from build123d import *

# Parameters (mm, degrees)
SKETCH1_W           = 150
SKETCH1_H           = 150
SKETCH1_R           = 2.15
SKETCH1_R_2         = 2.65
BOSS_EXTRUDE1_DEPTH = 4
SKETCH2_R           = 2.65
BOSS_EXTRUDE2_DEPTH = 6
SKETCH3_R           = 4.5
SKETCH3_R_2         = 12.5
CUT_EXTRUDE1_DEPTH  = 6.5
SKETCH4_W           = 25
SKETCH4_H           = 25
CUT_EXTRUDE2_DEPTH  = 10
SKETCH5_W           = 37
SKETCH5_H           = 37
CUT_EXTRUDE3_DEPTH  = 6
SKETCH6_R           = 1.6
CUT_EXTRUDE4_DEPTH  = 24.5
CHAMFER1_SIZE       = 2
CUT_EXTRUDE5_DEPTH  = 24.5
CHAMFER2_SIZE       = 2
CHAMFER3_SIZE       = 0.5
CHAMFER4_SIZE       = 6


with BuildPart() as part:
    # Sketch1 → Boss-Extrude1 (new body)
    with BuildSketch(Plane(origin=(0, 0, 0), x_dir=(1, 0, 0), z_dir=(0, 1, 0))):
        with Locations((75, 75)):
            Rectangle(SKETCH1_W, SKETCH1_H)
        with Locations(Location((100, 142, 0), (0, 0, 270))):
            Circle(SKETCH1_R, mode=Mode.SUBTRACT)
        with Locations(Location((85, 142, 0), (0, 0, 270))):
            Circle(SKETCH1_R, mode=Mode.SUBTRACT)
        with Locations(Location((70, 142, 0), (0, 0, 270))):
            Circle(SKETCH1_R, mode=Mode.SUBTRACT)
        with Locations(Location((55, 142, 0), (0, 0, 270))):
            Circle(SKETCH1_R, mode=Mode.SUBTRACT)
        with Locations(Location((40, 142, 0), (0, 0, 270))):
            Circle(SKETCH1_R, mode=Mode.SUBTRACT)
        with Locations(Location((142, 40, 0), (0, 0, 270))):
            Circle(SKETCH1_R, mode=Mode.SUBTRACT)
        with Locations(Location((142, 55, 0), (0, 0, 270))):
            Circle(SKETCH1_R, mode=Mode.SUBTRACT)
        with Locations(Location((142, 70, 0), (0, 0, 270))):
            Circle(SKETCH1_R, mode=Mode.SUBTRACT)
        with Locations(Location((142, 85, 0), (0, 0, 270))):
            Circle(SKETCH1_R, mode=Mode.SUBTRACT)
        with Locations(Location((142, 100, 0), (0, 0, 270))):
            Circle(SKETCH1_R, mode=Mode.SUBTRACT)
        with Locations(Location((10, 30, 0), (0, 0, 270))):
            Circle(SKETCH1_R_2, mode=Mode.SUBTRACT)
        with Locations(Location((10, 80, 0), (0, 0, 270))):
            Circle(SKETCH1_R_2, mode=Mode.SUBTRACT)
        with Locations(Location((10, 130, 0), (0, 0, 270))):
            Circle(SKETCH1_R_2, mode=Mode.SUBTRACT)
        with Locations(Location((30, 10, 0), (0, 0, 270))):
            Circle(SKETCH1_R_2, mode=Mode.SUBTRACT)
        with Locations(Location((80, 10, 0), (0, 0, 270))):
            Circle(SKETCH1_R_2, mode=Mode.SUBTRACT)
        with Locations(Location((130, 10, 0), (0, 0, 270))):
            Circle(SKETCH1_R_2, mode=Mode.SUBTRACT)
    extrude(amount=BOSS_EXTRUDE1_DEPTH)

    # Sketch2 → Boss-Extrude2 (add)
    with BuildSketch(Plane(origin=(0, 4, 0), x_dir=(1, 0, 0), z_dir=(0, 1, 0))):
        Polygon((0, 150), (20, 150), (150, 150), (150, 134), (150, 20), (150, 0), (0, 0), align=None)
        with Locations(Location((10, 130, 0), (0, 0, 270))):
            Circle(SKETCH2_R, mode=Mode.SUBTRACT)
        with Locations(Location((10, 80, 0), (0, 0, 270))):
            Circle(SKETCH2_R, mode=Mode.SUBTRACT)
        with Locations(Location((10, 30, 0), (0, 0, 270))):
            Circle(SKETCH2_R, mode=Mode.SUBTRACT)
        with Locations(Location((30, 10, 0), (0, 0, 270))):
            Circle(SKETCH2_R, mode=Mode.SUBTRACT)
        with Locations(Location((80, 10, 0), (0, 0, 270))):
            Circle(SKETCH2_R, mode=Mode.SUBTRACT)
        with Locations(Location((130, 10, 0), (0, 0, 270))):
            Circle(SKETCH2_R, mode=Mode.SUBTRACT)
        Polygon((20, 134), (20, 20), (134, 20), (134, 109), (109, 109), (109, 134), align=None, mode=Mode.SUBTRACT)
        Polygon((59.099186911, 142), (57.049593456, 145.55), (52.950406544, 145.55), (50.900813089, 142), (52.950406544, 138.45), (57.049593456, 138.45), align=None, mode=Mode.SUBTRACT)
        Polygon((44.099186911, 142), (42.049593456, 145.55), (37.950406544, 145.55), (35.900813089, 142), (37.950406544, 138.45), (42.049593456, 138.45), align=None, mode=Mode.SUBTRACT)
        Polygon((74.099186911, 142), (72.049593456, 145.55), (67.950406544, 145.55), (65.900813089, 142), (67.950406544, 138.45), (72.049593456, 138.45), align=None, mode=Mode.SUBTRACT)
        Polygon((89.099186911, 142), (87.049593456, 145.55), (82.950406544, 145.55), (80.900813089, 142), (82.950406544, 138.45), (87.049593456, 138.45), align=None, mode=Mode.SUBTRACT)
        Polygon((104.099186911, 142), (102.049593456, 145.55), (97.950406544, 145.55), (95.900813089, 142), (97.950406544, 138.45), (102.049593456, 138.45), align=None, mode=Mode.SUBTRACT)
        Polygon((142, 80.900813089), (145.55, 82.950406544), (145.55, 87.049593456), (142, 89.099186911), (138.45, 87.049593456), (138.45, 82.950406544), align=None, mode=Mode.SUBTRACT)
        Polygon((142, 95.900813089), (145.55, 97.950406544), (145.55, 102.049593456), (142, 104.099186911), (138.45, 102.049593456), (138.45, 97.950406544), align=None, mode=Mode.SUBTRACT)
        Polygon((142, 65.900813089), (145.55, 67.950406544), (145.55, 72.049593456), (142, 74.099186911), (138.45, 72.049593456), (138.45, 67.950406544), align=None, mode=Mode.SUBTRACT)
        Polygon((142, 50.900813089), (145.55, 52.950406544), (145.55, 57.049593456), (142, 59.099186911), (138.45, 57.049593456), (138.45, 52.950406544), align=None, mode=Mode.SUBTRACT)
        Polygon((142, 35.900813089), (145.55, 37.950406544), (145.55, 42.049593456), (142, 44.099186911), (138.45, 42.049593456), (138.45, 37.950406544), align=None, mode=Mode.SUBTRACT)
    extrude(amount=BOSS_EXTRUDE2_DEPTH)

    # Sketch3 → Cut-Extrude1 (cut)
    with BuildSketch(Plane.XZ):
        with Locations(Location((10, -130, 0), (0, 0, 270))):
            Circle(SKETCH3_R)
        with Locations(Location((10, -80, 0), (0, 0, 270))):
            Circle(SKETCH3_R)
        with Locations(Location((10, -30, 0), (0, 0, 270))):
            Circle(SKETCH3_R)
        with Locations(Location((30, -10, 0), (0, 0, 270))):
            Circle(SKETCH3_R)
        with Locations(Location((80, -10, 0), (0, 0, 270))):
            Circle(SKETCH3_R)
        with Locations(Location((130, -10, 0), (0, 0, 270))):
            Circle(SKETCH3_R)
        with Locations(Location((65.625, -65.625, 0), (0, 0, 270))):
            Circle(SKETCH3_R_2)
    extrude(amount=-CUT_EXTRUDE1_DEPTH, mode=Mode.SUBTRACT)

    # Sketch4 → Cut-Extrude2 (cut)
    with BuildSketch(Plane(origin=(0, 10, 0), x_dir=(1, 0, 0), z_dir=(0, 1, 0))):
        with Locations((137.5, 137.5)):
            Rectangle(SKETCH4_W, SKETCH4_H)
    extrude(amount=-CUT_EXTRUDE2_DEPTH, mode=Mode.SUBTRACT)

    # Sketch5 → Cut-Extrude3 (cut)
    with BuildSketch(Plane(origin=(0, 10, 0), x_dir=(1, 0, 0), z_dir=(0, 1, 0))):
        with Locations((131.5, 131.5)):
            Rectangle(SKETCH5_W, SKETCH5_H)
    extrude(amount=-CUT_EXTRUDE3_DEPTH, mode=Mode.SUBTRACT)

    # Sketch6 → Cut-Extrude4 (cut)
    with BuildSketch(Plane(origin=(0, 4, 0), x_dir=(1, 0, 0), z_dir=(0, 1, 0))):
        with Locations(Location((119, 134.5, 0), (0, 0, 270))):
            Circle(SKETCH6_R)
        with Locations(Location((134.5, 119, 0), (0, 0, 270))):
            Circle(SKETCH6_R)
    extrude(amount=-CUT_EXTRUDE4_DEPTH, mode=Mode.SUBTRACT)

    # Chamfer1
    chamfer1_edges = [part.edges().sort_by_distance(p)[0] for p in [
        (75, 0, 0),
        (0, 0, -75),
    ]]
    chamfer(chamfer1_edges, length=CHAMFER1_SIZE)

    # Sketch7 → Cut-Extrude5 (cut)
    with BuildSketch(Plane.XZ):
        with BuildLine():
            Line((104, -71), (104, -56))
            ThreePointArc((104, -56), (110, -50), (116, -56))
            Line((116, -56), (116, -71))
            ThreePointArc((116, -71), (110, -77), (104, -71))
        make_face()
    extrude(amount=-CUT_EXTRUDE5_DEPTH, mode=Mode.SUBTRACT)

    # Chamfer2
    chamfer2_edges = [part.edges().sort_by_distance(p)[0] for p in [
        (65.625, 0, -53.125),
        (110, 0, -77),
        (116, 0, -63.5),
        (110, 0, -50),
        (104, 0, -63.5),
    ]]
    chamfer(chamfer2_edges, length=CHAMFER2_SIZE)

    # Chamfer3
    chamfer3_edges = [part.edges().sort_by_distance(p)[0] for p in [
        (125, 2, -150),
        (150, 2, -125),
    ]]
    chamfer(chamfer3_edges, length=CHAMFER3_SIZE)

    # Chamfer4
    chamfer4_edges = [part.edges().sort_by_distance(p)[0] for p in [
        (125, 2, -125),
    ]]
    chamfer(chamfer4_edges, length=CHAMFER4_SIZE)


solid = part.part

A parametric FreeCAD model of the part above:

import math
import FreeCAD as App
import Part
import Sketcher
Q = App.Units.Quantity


def edges_at(feature, points):
    """Names of the edges that pass closest to the given points."""
    edges = feature.Shape.Edges
    near = lambda p: min(range(len(edges)), key=lambda i: edges[i].distToShape(Part.Vertex(*p))[0])
    return sorted({f"Edge{near(p) + 1}" for p in points})

doc = App.newDocument("Part")
body = doc.addObject("PartDesign::Body", "Body")

sketch1 = body.newObject("Sketcher::SketchObject", "Sketch")
sketch1.AttachmentSupport = (doc.getObject("XZ_Plane"), [""])
sketch1.MapMode = "FlatFace"
sketch1.addGeometry(Part.LineSegment(App.Vector(0, -150, 0), App.Vector(0, 0, 0)), False)
sketch1.addGeometry(Part.LineSegment(App.Vector(0, 0, 0), App.Vector(150, 0, 0)), False)
sketch1.addGeometry(Part.LineSegment(App.Vector(150, 0, 0), App.Vector(150, -150, 0)), False)
sketch1.addGeometry(Part.LineSegment(App.Vector(150, -150, 0), App.Vector(0, -150, 0)), False)
sketch1.addGeometry(Part.Circle(App.Vector(30, -10, 0), App.Vector(0, 0, 1), 2.65), False)
sketch1.addGeometry(Part.Circle(App.Vector(10, -30, 0), App.Vector(0, 0, 1), 2.65), False)
sketch1.addGeometry(Part.Circle(App.Vector(80, -10, 0), App.Vector(0, 0, 1), 2.65), False)
sketch1.addGeometry(Part.Circle(App.Vector(130, -10, 0), App.Vector(0, 0, 1), 2.65), False)
sketch1.addGeometry(Part.Circle(App.Vector(142, -40, 0), App.Vector(0, 0, 1), 2.15), False)
sketch1.addGeometry(Part.Circle(App.Vector(142, -55, 0), App.Vector(0, 0, 1), 2.15), False)
sketch1.addGeometry(Part.Circle(App.Vector(142, -70, 0), App.Vector(0, 0, 1), 2.15), False)
sketch1.addGeometry(Part.Circle(App.Vector(10, -80, 0), App.Vector(0, 0, 1), 2.65), False)
sketch1.addGeometry(Part.Circle(App.Vector(10, -130, 0), App.Vector(0, 0, 1), 2.65), False)
sketch1.addGeometry(Part.Circle(App.Vector(40, -142, 0), App.Vector(0, 0, 1), 2.15), False)
sketch1.addGeometry(Part.Circle(App.Vector(55, -142, 0), App.Vector(0, 0, 1), 2.15), False)
sketch1.addGeometry(Part.Circle(App.Vector(70, -142, 0), App.Vector(0, 0, 1), 2.15), False)
sketch1.addGeometry(Part.Circle(App.Vector(142, -85, 0), App.Vector(0, 0, 1), 2.15), False)
sketch1.addGeometry(Part.Circle(App.Vector(142, -100, 0), App.Vector(0, 0, 1), 2.15), False)
sketch1.addGeometry(Part.Circle(App.Vector(85, -142, 0), App.Vector(0, 0, 1), 2.15), False)
sketch1.addGeometry(Part.Circle(App.Vector(100, -142, 0), App.Vector(0, 0, 1), 2.15), False)
sketch1.addConstraint(Sketcher.Constraint("Coincident", 0, 2, 1, 1))
sketch1.addConstraint(Sketcher.Constraint("Coincident", 1, 2, 2, 1))
sketch1.addConstraint(Sketcher.Constraint("Coincident", 2, 2, 3, 1))
sketch1.addConstraint(Sketcher.Constraint("Coincident", 3, 2, 0, 1))
sketch1.addConstraint(Sketcher.Constraint("Vertical", 0))
sketch1.addConstraint(Sketcher.Constraint("Horizontal", 1))
sketch1.addConstraint(Sketcher.Constraint("Vertical", 2))
sketch1.addConstraint(Sketcher.Constraint("Horizontal", 3))
sketch1.addConstraint(Sketcher.Constraint("Coincident", 0, 2, -1, 1))
sketch1.addConstraint(Sketcher.Constraint("Equal", 4, 5))
sketch1.addConstraint(Sketcher.Constraint("Equal", 5, 6))
sketch1.addConstraint(Sketcher.Constraint("Equal", 6, 7))
sketch1.addConstraint(Sketcher.Constraint("Equal", 8, 9))
sketch1.addConstraint(Sketcher.Constraint("Equal", 9, 10))
sketch1.addConstraint(Sketcher.Constraint("Equal", 7, 11))
sketch1.addConstraint(Sketcher.Constraint("Equal", 11, 12))
sketch1.addConstraint(Sketcher.Constraint("Equal", 10, 13))
sketch1.addConstraint(Sketcher.Constraint("Equal", 13, 14))
sketch1.addConstraint(Sketcher.Constraint("Equal", 14, 15))
sketch1.addConstraint(Sketcher.Constraint("Equal", 15, 16))
sketch1.addConstraint(Sketcher.Constraint("Equal", 16, 17))
sketch1.addConstraint(Sketcher.Constraint("Equal", 17, 18))
sketch1.addConstraint(Sketcher.Constraint("Equal", 18, 19))
sketch1.addConstraint(Sketcher.Constraint("Horizontal", 4, 3, 6, 3))
sketch1.addConstraint(Sketcher.Constraint("Horizontal", 6, 3, 7, 3))
sketch1.addConstraint(Sketcher.Constraint("Horizontal", 13, 3, 14, 3))
sketch1.addConstraint(Sketcher.Constraint("Horizontal", 14, 3, 15, 3))
sketch1.addConstraint(Sketcher.Constraint("Horizontal", 15, 3, 18, 3))
sketch1.addConstraint(Sketcher.Constraint("Horizontal", 18, 3, 19, 3))
sketch1.addConstraint(Sketcher.Constraint("Vertical", 8, 3, 9, 3))
sketch1.addConstraint(Sketcher.Constraint("Vertical", 9, 3, 10, 3))
sketch1.addConstraint(Sketcher.Constraint("Vertical", 5, 3, 11, 3))
sketch1.addConstraint(Sketcher.Constraint("Vertical", 11, 3, 12, 3))
sketch1.addConstraint(Sketcher.Constraint("Vertical", 10, 3, 16, 3))
sketch1.addConstraint(Sketcher.Constraint("Vertical", 16, 3, 17, 3))
sketch1.addConstraint(Sketcher.Constraint("Equal", 3, 0))
sketch1.addConstraint(Sketcher.Constraint("Diameter", 4, 5.3))
sketch1.addConstraint(Sketcher.Constraint("Diameter", 8, 4.3))
sketch1.addConstraint(Sketcher.Constraint("DistanceX", 1, 1, 1, 2, 150.0))
sketch1.addConstraint(Sketcher.Constraint("DistanceX", -1, 1, 4, 3, 30.0))
sketch1.addConstraint(Sketcher.Constraint("DistanceY", 4, 3, -1, 1, 10.0))
sketch1.addConstraint(Sketcher.Constraint("DistanceX", -1, 1, 5, 3, 10.0))
sketch1.addConstraint(Sketcher.Constraint("DistanceY", 5, 3, -1, 1, 30.0))
sketch1.addConstraint(Sketcher.Constraint("DistanceX", -1, 1, 6, 3, 80.0))
sketch1.addConstraint(Sketcher.Constraint("DistanceX", -1, 1, 7, 3, 130.0))
sketch1.addConstraint(Sketcher.Constraint("DistanceX", -1, 1, 8, 3, 142.0))
sketch1.addConstraint(Sketcher.Constraint("DistanceY", 8, 3, -1, 1, 40.0))
sketch1.addConstraint(Sketcher.Constraint("DistanceY", 9, 3, -1, 1, 55.0))
sketch1.addConstraint(Sketcher.Constraint("DistanceY", 10, 3, -1, 1, 70.0))
sketch1.addConstraint(Sketcher.Constraint("DistanceY", 11, 3, -1, 1, 80.0))
sketch1.addConstraint(Sketcher.Constraint("DistanceY", 12, 3, -1, 1, 130.0))
sketch1.addConstraint(Sketcher.Constraint("DistanceX", -1, 1, 13, 3, 40.0))
sketch1.addConstraint(Sketcher.Constraint("DistanceY", 13, 3, -1, 1, 142.0))
sketch1.addConstraint(Sketcher.Constraint("DistanceX", -1, 1, 14, 3, 55.0))
sketch1.addConstraint(Sketcher.Constraint("DistanceX", -1, 1, 15, 3, 70.0))
sketch1.addConstraint(Sketcher.Constraint("DistanceY", 16, 3, -1, 1, 85.0))
sketch1.addConstraint(Sketcher.Constraint("DistanceY", 17, 3, -1, 1, 100.0))
sketch1.addConstraint(Sketcher.Constraint("DistanceX", -1, 1, 18, 3, 85.0))
sketch1.addConstraint(Sketcher.Constraint("DistanceX", -1, 1, 19, 3, 100.0))
pad1 = body.newObject("PartDesign::Pad", "Pad")
pad1.Profile = sketch1
pad1.Length = 4
pad1.Reversed = True

sketch2 = body.newObject("Sketcher::SketchObject", "Sketch001")
sketch2.AttachmentSupport = (doc.getObject("XZ_Plane"), [""])
sketch2.MapMode = "FlatFace"
sketch2.AttachmentOffset = App.Placement(App.Vector(0, 0, -4), App.Rotation())
sketch2.addGeometry(Part.LineSegment(App.Vector(150, -150, 0), App.Vector(0, -150, 0)), False)
sketch2.addGeometry(Part.LineSegment(App.Vector(0, -150, 0), App.Vector(0, 0, 0)), False)
sketch2.addGeometry(Part.LineSegment(App.Vector(0, 0, 0), App.Vector(150, 0, 0)), False)
sketch2.addGeometry(Part.LineSegment(App.Vector(150, 0, 0), App.Vector(150, -150, 0)), False)
sketch2.addGeometry(Part.Circle(App.Vector(130, -10, 0), App.Vector(0, 0, 1), 2.65), False)
sketch2.addGeometry(Part.LineSegment(App.Vector(142, -35.900813, 0), App.Vector(138.45, -37.950407, 0)), False)
sketch2.addGeometry(Part.LineSegment(App.Vector(138.45, -37.950407, 0), App.Vector(138.45, -42.049593, 0)), False)
sketch2.addGeometry(Part.LineSegment(App.Vector(138.45, -42.049593, 0), App.Vector(142, -44.099187, 0)), False)
sketch2.addGeometry(Part.LineSegment(App.Vector(142, -44.099187, 0), App.Vector(145.55, -42.049593, 0)), False)
sketch2.addGeometry(Part.LineSegment(App.Vector(145.55, -42.049593, 0), App.Vector(145.55, -37.950407, 0)), False)
sketch2.addGeometry(Part.LineSegment(App.Vector(145.55, -37.950407, 0), App.Vector(142, -35.900813, 0)), False)
sketch2.addGeometry(Part.Circle(App.Vector(80, -10, 0), App.Vector(0, 0, 1), 2.65), False)
sketch2.addGeometry(Part.LineSegment(App.Vector(142, -50.900813, 0), App.Vector(138.45, -52.950407, 0)), False)
sketch2.addGeometry(Part.LineSegment(App.Vector(138.45, -52.950407, 0), App.Vector(138.45, -57.049593, 0)), False)
sketch2.addGeometry(Part.LineSegment(App.Vector(138.45, -57.049593, 0), App.Vector(142, -59.099187, 0)), False)
sketch2.addGeometry(Part.LineSegment(App.Vector(142, -59.099187, 0), App.Vector(145.55, -57.049593, 0)), False)
sketch2.addGeometry(Part.LineSegment(App.Vector(145.55, -57.049593, 0), App.Vector(145.55, -52.950407, 0)), False)
sketch2.addGeometry(Part.LineSegment(App.Vector(145.55, -52.950407, 0), App.Vector(142, -50.900813, 0)), False)
sketch2.addGeometry(Part.LineSegment(App.Vector(142, -65.900813, 0), App.Vector(138.45, -67.950407, 0)), False)
sketch2.addGeometry(Part.LineSegment(App.Vector(138.45, -67.950407, 0), App.Vector(138.45, -72.049593, 0)), False)
sketch2.addGeometry(Part.LineSegment(App.Vector(138.45, -72.049593, 0), App.Vector(142, -74.099187, 0)), False)
sketch2.addGeometry(Part.LineSegment(App.Vector(142, -74.099187, 0), App.Vector(145.55, -72.049593, 0)), False)
sketch2.addGeometry(Part.LineSegment(App.Vector(145.55, -72.049593, 0), App.Vector(145.55, -67.950407, 0)), False)
sketch2.addGeometry(Part.LineSegment(App.Vector(145.55, -67.950407, 0), App.Vector(142, -65.900813, 0)), False)
sketch2.addGeometry(Part.Circle(App.Vector(30, -10, 0), App.Vector(0, 0, 1), 2.65), False)
sketch2.addGeometry(Part.Circle(App.Vector(10, -30, 0), App.Vector(0, 0, 1), 2.65), False)
sketch2.addGeometry(Part.LineSegment(App.Vector(142, -80.900813, 0), App.Vector(138.45, -82.950407, 0)), False)
sketch2.addGeometry(Part.LineSegment(App.Vector(138.45, -82.950407, 0), App.Vector(138.45, -87.049593, 0)), False)
sketch2.addGeometry(Part.LineSegment(App.Vector(138.45, -87.049593, 0), App.Vector(142, -89.099187, 0)), False)
sketch2.addGeometry(Part.LineSegment(App.Vector(142, -89.099187, 0), App.Vector(145.55, -87.049593, 0)), False)
sketch2.addGeometry(Part.LineSegment(App.Vector(145.55, -87.049593, 0), App.Vector(145.55, -82.950407, 0)), False)
sketch2.addGeometry(Part.LineSegment(App.Vector(145.55, -82.950407, 0), App.Vector(142, -80.900813, 0)), False)
sketch2.addGeometry(Part.LineSegment(App.Vector(142, -95.900813, 0), App.Vector(138.45, -97.950407, 0)), False)
sketch2.addGeometry(Part.LineSegment(App.Vector(138.45, -97.950407, 0), App.Vector(138.45, -102.049593, 0)), False)
sketch2.addGeometry(Part.LineSegment(App.Vector(138.45, -102.049593, 0), App.Vector(142, -104.099187, 0)), False)
sketch2.addGeometry(Part.LineSegment(App.Vector(142, -104.099187, 0), App.Vector(145.55, -102.049593, 0)), False)
sketch2.addGeometry(Part.LineSegment(App.Vector(145.55, -102.049593, 0), App.Vector(145.55, -97.950407, 0)), False)
sketch2.addGeometry(Part.LineSegment(App.Vector(145.55, -97.950407, 0), App.Vector(142, -95.900813, 0)), False)
sketch2.addGeometry(Part.LineSegment(App.Vector(20, -134, 0), App.Vector(109, -134, 0)), False)
sketch2.addGeometry(Part.LineSegment(App.Vector(109, -134, 0), App.Vector(109, -109, 0)), False)
sketch2.addGeometry(Part.LineSegment(App.Vector(109, -109, 0), App.Vector(134, -109, 0)), False)
sketch2.addGeometry(Part.LineSegment(App.Vector(134, -109, 0), App.Vector(134, -20, 0)), False)
sketch2.addGeometry(Part.LineSegment(App.Vector(134, -20, 0), App.Vector(20, -20, 0)), False)
sketch2.addGeometry(Part.LineSegment(App.Vector(20, -20, 0), App.Vector(20, -134, 0)), False)
sketch2.addGeometry(Part.LineSegment(App.Vector(104.099187, -142, 0), App.Vector(102.049593, -138.45, 0)), False)
sketch2.addGeometry(Part.LineSegment(App.Vector(102.049593, -138.45, 0), App.Vector(97.950407, -138.45, 0)), False)
sketch2.addGeometry(Part.LineSegment(App.Vector(97.950407, -138.45, 0), App.Vector(95.900813, -142, 0)), False)
sketch2.addGeometry(Part.LineSegment(App.Vector(95.900813, -142, 0), App.Vector(97.950407, -145.55, 0)), False)
sketch2.addGeometry(Part.LineSegment(App.Vector(97.950407, -145.55, 0), App.Vector(102.049593, -145.55, 0)), False)
sketch2.addGeometry(Part.LineSegment(App.Vector(102.049593, -145.55, 0), App.Vector(104.099187, -142, 0)), False)
sketch2.addGeometry(Part.LineSegment(App.Vector(89.099187, -142, 0), App.Vector(87.049593, -138.45, 0)), False)
sketch2.addGeometry(Part.LineSegment(App.Vector(87.049593, -138.45, 0), App.Vector(82.950407, -138.45, 0)), False)
sketch2.addGeometry(Part.LineSegment(App.Vector(82.950407, -138.45, 0), App.Vector(80.900813, -142, 0)), False)
sketch2.addGeometry(Part.LineSegment(App.Vector(80.900813, -142, 0), App.Vector(82.950407, -145.55, 0)), False)
sketch2.addGeometry(Part.LineSegment(App.Vector(82.950407, -145.55, 0), App.Vector(87.049593, -145.55, 0)), False)
sketch2.addGeometry(Part.LineSegment(App.Vector(87.049593, -145.55, 0), App.Vector(89.099187, -142, 0)), False)
sketch2.addGeometry(Part.Circle(App.Vector(10, -80, 0), App.Vector(0, 0, 1), 2.65), False)
sketch2.addGeometry(Part.LineSegment(App.Vector(74.099187, -142, 0), App.Vector(72.049593, -138.45, 0)), False)
sketch2.addGeometry(Part.LineSegment(App.Vector(72.049593, -138.45, 0), App.Vector(67.950407, -138.45, 0)), False)
sketch2.addGeometry(Part.LineSegment(App.Vector(67.950407, -138.45, 0), App.Vector(65.900813, -142, 0)), False)
sketch2.addGeometry(Part.LineSegment(App.Vector(65.900813, -142, 0), App.Vector(67.950407, -145.55, 0)), False)
sketch2.addGeometry(Part.LineSegment(App.Vector(67.950407, -145.55, 0), App.Vector(72.049593, -145.55, 0)), False)
sketch2.addGeometry(Part.LineSegment(App.Vector(72.049593, -145.55, 0), App.Vector(74.099187, -142, 0)), False)
sketch2.addGeometry(Part.LineSegment(App.Vector(59.099187, -142, 0), App.Vector(57.049593, -138.45, 0)), False)
sketch2.addGeometry(Part.LineSegment(App.Vector(57.049593, -138.45, 0), App.Vector(52.950407, -138.45, 0)), False)
sketch2.addGeometry(Part.LineSegment(App.Vector(52.950407, -138.45, 0), App.Vector(50.900813, -142, 0)), False)
sketch2.addGeometry(Part.LineSegment(App.Vector(50.900813, -142, 0), App.Vector(52.950407, -145.55, 0)), False)
sketch2.addGeometry(Part.LineSegment(App.Vector(52.950407, -145.55, 0), App.Vector(57.049593, -145.55, 0)), False)
sketch2.addGeometry(Part.LineSegment(App.Vector(57.049593, -145.55, 0), App.Vector(59.099187, -142, 0)), False)
sketch2.addGeometry(Part.LineSegment(App.Vector(44.099187, -142, 0), App.Vector(42.049593, -138.45, 0)), False)
sketch2.addGeometry(Part.LineSegment(App.Vector(42.049593, -138.45, 0), App.Vector(37.950407, -138.45, 0)), False)
sketch2.addGeometry(Part.LineSegment(App.Vector(37.950407, -138.45, 0), App.Vector(35.900813, -142, 0)), False)
sketch2.addGeometry(Part.LineSegment(App.Vector(35.900813, -142, 0), App.Vector(37.950407, -145.55, 0)), False)
sketch2.addGeometry(Part.LineSegment(App.Vector(37.950407, -145.55, 0), App.Vector(42.049593, -145.55, 0)), False)
sketch2.addGeometry(Part.LineSegment(App.Vector(42.049593, -145.55, 0), App.Vector(44.099187, -142, 0)), False)
sketch2.addGeometry(Part.Circle(App.Vector(10, -130, 0), App.Vector(0, 0, 1), 2.65), False)
sketch2.addConstraint(Sketcher.Constraint("Coincident", 0, 2, 1, 1))
sketch2.addConstraint(Sketcher.Constraint("Coincident", 1, 2, 2, 1))
sketch2.addConstraint(Sketcher.Constraint("Coincident", 2, 2, 3, 1))
sketch2.addConstraint(Sketcher.Constraint("Coincident", 3, 2, 0, 1))
sketch2.addConstraint(Sketcher.Constraint("Coincident", 5, 2, 6, 1))
sketch2.addConstraint(Sketcher.Constraint("Coincident", 6, 2, 7, 1))
sketch2.addConstraint(Sketcher.Constraint("Coincident", 7, 2, 8, 1))
sketch2.addConstraint(Sketcher.Constraint("Coincident", 8, 2, 9, 1))
sketch2.addConstraint(Sketcher.Constraint("Coincident", 9, 2, 10, 1))
sketch2.addConstraint(Sketcher.Constraint("Coincident", 10, 2, 5, 1))
sketch2.addConstraint(Sketcher.Constraint("Coincident", 12, 2, 13, 1))
sketch2.addConstraint(Sketcher.Constraint("Coincident", 13, 2, 14, 1))
sketch2.addConstraint(Sketcher.Constraint("Coincident", 14, 2, 15, 1))
sketch2.addConstraint(Sketcher.Constraint("Coincident", 15, 2, 16, 1))
sketch2.addConstraint(Sketcher.Constraint("Coincident", 16, 2, 17, 1))
sketch2.addConstraint(Sketcher.Constraint("Coincident", 17, 2, 12, 1))
sketch2.addConstraint(Sketcher.Constraint("Coincident", 18, 2, 19, 1))
sketch2.addConstraint(Sketcher.Constraint("Coincident", 19, 2, 20, 1))
sketch2.addConstraint(Sketcher.Constraint("Coincident", 20, 2, 21, 1))
sketch2.addConstraint(Sketcher.Constraint("Coincident", 21, 2, 22, 1))
sketch2.addConstraint(Sketcher.Constraint("Coincident", 22, 2, 23, 1))
sketch2.addConstraint(Sketcher.Constraint("Coincident", 23, 2, 18, 1))
sketch2.addConstraint(Sketcher.Constraint("Coincident", 26, 2, 27, 1))
sketch2.addConstraint(Sketcher.Constraint("Coincident", 27, 2, 28, 1))
sketch2.addConstraint(Sketcher.Constraint("Coincident", 28, 2, 29, 1))
sketch2.addConstraint(Sketcher.Constraint("Coincident", 29, 2, 30, 1))
sketch2.addConstraint(Sketcher.Constraint("Coincident", 30, 2, 31, 1))
sketch2.addConstraint(Sketcher.Constraint("Coincident", 31, 2, 26, 1))
sketch2.addConstraint(Sketcher.Constraint("Coincident", 32, 2, 33, 1))
sketch2.addConstraint(Sketcher.Constraint("Coincident", 33, 2, 34, 1))
sketch2.addConstraint(Sketcher.Constraint("Coincident", 34, 2, 35, 1))
sketch2.addConstraint(Sketcher.Constraint("Coincident", 35, 2, 36, 1))
sketch2.addConstraint(Sketcher.Constraint("Coincident", 36, 2, 37, 1))
sketch2.addConstraint(Sketcher.Constraint("Coincident", 37, 2, 32, 1))
sketch2.addConstraint(Sketcher.Constraint("Coincident", 38, 2, 39, 1))
sketch2.addConstraint(Sketcher.Constraint("Coincident", 39, 2, 40, 1))
sketch2.addConstraint(Sketcher.Constraint("Coincident", 40, 2, 41, 1))
sketch2.addConstraint(Sketcher.Constraint("Coincident", 41, 2, 42, 1))
sketch2.addConstraint(Sketcher.Constraint("Coincident", 42, 2, 43, 1))
sketch2.addConstraint(Sketcher.Constraint("Coincident", 43, 2, 38, 1))
sketch2.addConstraint(Sketcher.Constraint("Coincident", 44, 2, 45, 1))
sketch2.addConstraint(Sketcher.Constraint("Coincident", 45, 2, 46, 1))
sketch2.addConstraint(Sketcher.Constraint("Coincident", 46, 2, 47, 1))
sketch2.addConstraint(Sketcher.Constraint("Coincident", 47, 2, 48, 1))
sketch2.addConstraint(Sketcher.Constraint("Coincident", 48, 2, 49, 1))
sketch2.addConstraint(Sketcher.Constraint("Coincident", 49, 2, 44, 1))
sketch2.addConstraint(Sketcher.Constraint("Coincident", 50, 2, 51, 1))
sketch2.addConstraint(Sketcher.Constraint("Coincident", 51, 2, 52, 1))
sketch2.addConstraint(Sketcher.Constraint("Coincident", 52, 2, 53, 1))
sketch2.addConstraint(Sketcher.Constraint("Coincident", 53, 2, 54, 1))
sketch2.addConstraint(Sketcher.Constraint("Coincident", 54, 2, 55, 1))
sketch2.addConstraint(Sketcher.Constraint("Coincident", 55, 2, 50, 1))
sketch2.addConstraint(Sketcher.Constraint("Coincident", 57, 2, 58, 1))
sketch2.addConstraint(Sketcher.Constraint("Coincident", 58, 2, 59, 1))
sketch2.addConstraint(Sketcher.Constraint("Coincident", 59, 2, 60, 1))
sketch2.addConstraint(Sketcher.Constraint("Coincident", 60, 2, 61, 1))
sketch2.addConstraint(Sketcher.Constraint("Coincident", 61, 2, 62, 1))
sketch2.addConstraint(Sketcher.Constraint("Coincident", 62, 2, 57, 1))
sketch2.addConstraint(Sketcher.Constraint("Coincident", 63, 2, 64, 1))
sketch2.addConstraint(Sketcher.Constraint("Coincident", 64, 2, 65, 1))
sketch2.addConstraint(Sketcher.Constraint("Coincident", 65, 2, 66, 1))
sketch2.addConstraint(Sketcher.Constraint("Coincident", 66, 2, 67, 1))
sketch2.addConstraint(Sketcher.Constraint("Coincident", 67, 2, 68, 1))
sketch2.addConstraint(Sketcher.Constraint("Coincident", 68, 2, 63, 1))
sketch2.addConstraint(Sketcher.Constraint("Coincident", 69, 2, 70, 1))
sketch2.addConstraint(Sketcher.Constraint("Coincident", 70, 2, 71, 1))
sketch2.addConstraint(Sketcher.Constraint("Coincident", 71, 2, 72, 1))
sketch2.addConstraint(Sketcher.Constraint("Coincident", 72, 2, 73, 1))
sketch2.addConstraint(Sketcher.Constraint("Coincident", 73, 2, 74, 1))
sketch2.addConstraint(Sketcher.Constraint("Coincident", 74, 2, 69, 1))
sketch2.addConstraint(Sketcher.Constraint("Horizontal", 0))
sketch2.addConstraint(Sketcher.Constraint("Vertical", 1))
sketch2.addConstraint(Sketcher.Constraint("Horizontal", 2))
sketch2.addConstraint(Sketcher.Constraint("Vertical", 3))
sketch2.addConstraint(Sketcher.Constraint("Vertical", 6))
sketch2.addConstraint(Sketcher.Constraint("Vertical", 9))
sketch2.addConstraint(Sketcher.Constraint("Vertical", 13))
sketch2.addConstraint(Sketcher.Constraint("Vertical", 16))
sketch2.addConstraint(Sketcher.Constraint("Vertical", 19))
sketch2.addConstraint(Sketcher.Constraint("Vertical", 22))
sketch2.addConstraint(Sketcher.Constraint("Vertical", 27))
sketch2.addConstraint(Sketcher.Constraint("Vertical", 30))
sketch2.addConstraint(Sketcher.Constraint("Vertical", 33))
sketch2.addConstraint(Sketcher.Constraint("Vertical", 36))
sketch2.addConstraint(Sketcher.Constraint("Horizontal", 38))
sketch2.addConstraint(Sketcher.Constraint("Vertical", 39))
sketch2.addConstraint(Sketcher.Constraint("Horizontal", 40))
sketch2.addConstraint(Sketcher.Constraint("Vertical", 41))
sketch2.addConstraint(Sketcher.Constraint("Horizontal", 42))
sketch2.addConstraint(Sketcher.Constraint("Vertical", 43))
sketch2.addConstraint(Sketcher.Constraint("Horizontal", 45))
sketch2.addConstraint(Sketcher.Constraint("Horizontal", 48))
sketch2.addConstraint(Sketcher.Constraint("Horizontal", 51))
sketch2.addConstraint(Sketcher.Constraint("Horizontal", 54))
sketch2.addConstraint(Sketcher.Constraint("Horizontal", 58))
sketch2.addConstraint(Sketcher.Constraint("Horizontal", 61))
sketch2.addConstraint(Sketcher.Constraint("Horizontal", 64))
sketch2.addConstraint(Sketcher.Constraint("Horizontal", 67))
sketch2.addConstraint(Sketcher.Constraint("Horizontal", 70))
sketch2.addConstraint(Sketcher.Constraint("Horizontal", 73))
sketch2.addConstraint(Sketcher.Constraint("Coincident", 1, 2, -1, 1))
sketch2.addConstraint(Sketcher.Constraint("Equal", 4, 11))
sketch2.addConstraint(Sketcher.Constraint("Equal", 11, 24))
sketch2.addConstraint(Sketcher.Constraint("Equal", 24, 25))
sketch2.addConstraint(Sketcher.Constraint("Equal", 25, 56))
sketch2.addConstraint(Sketcher.Constraint("Equal", 56, 75))
sketch2.addConstraint(Sketcher.Constraint("Parallel", 5, 8))
sketch2.addConstraint(Sketcher.Constraint("Parallel", 7, 10))
sketch2.addConstraint(Sketcher.Constraint("Parallel", 8, 12))
sketch2.addConstraint(Sketcher.Constraint("Parallel", 10, 14))
sketch2.addConstraint(Sketcher.Constraint("Parallel", 12, 15))
sketch2.addConstraint(Sketcher.Constraint("Parallel", 14, 17))
sketch2.addConstraint(Sketcher.Constraint("Parallel", 15, 18))
sketch2.addConstraint(Sketcher.Constraint("Parallel", 17, 20))
sketch2.addConstraint(Sketcher.Constraint("Parallel", 18, 21))
sketch2.addConstraint(Sketcher.Constraint("Parallel", 20, 23))
sketch2.addConstraint(Sketcher.Constraint("Parallel", 21, 26))
sketch2.addConstraint(Sketcher.Constraint("Parallel", 23, 28))
sketch2.addConstraint(Sketcher.Constraint("Parallel", 26, 29))
sketch2.addConstraint(Sketcher.Constraint("Parallel", 28, 31))
sketch2.addConstraint(Sketcher.Constraint("Parallel", 29, 32))
sketch2.addConstraint(Sketcher.Constraint("Parallel", 31, 34))
sketch2.addConstraint(Sketcher.Constraint("Parallel", 32, 35))
sketch2.addConstraint(Sketcher.Constraint("Parallel", 34, 37))
sketch2.addConstraint(Sketcher.Constraint("Perpendicular", 35, 44))
sketch2.addConstraint(Sketcher.Constraint("Perpendicular", 37, 46))
sketch2.addConstraint(Sketcher.Constraint("Parallel", 44, 47))
sketch2.addConstraint(Sketcher.Constraint("Parallel", 46, 49))
sketch2.addConstraint(Sketcher.Constraint("Parallel", 47, 50))
sketch2.addConstraint(Sketcher.Constraint("Parallel", 49, 52))
sketch2.addConstraint(Sketcher.Constraint("Parallel", 50, 53))
sketch2.addConstraint(Sketcher.Constraint("Parallel", 52, 55))
sketch2.addConstraint(Sketcher.Constraint("Parallel", 53, 57))
sketch2.addConstraint(Sketcher.Constraint("Parallel", 55, 59))
sketch2.addConstraint(Sketcher.Constraint("Parallel", 57, 60))
sketch2.addConstraint(Sketcher.Constraint("Parallel", 59, 62))
sketch2.addConstraint(Sketcher.Constraint("Parallel", 60, 63))
sketch2.addConstraint(Sketcher.Constraint("Parallel", 62, 65))
sketch2.addConstraint(Sketcher.Constraint("Parallel", 63, 66))
sketch2.addConstraint(Sketcher.Constraint("Parallel", 65, 68))
sketch2.addConstraint(Sketcher.Constraint("Parallel", 66, 69))
sketch2.addConstraint(Sketcher.Constraint("Parallel", 68, 71))
sketch2.addConstraint(Sketcher.Constraint("Parallel", 69, 72))
sketch2.addConstraint(Sketcher.Constraint("Parallel", 71, 74))
sketch2.addConstraint(Sketcher.Constraint("Horizontal", 4, 3, 11, 3))
sketch2.addConstraint(Sketcher.Constraint("Horizontal", 11, 3, 24, 3))
sketch2.addConstraint(Sketcher.Constraint("Horizontal", 6, 2, 8, 2))
sketch2.addConstraint(Sketcher.Constraint("Horizontal", 5, 2, 9, 2))
sketch2.addConstraint(Sketcher.Constraint("Horizontal", 13, 2, 15, 2))
sketch2.addConstraint(Sketcher.Constraint("Horizontal", 12, 2, 16, 2))
sketch2.addConstraint(Sketcher.Constraint("Horizontal", 19, 2, 21, 2))
sketch2.addConstraint(Sketcher.Constraint("Horizontal", 18, 2, 22, 2))
sketch2.addConstraint(Sketcher.Constraint("Horizontal", 27, 2, 29, 2))
sketch2.addConstraint(Sketcher.Constraint("Horizontal", 26, 2, 30, 2))
sketch2.addConstraint(Sketcher.Constraint("Horizontal", 33, 2, 35, 2))
sketch2.addConstraint(Sketcher.Constraint("Horizontal", 32, 2, 36, 2))
sketch2.addConstraint(Sketcher.Constraint("Horizontal", 46, 2, 49, 2))
sketch2.addConstraint(Sketcher.Constraint("Horizontal", 45, 2, 50, 2))
sketch2.addConstraint(Sketcher.Constraint("Horizontal", 49, 2, 52, 2))
sketch2.addConstraint(Sketcher.Constraint("Horizontal", 48, 2, 53, 2))
sketch2.addConstraint(Sketcher.Constraint("Horizontal", 52, 2, 55, 2))
sketch2.addConstraint(Sketcher.Constraint("Horizontal", 51, 2, 57, 2))
sketch2.addConstraint(Sketcher.Constraint("Horizontal", 55, 2, 59, 2))
sketch2.addConstraint(Sketcher.Constraint("Horizontal", 54, 2, 60, 2))
sketch2.addConstraint(Sketcher.Constraint("Horizontal", 59, 2, 62, 2))
sketch2.addConstraint(Sketcher.Constraint("Horizontal", 58, 2, 63, 2))
sketch2.addConstraint(Sketcher.Constraint("Horizontal", 62, 2, 65, 2))
sketch2.addConstraint(Sketcher.Constraint("Horizontal", 61, 2, 66, 2))
sketch2.addConstraint(Sketcher.Constraint("Horizontal", 65, 2, 68, 2))
sketch2.addConstraint(Sketcher.Constraint("Horizontal", 64, 2, 69, 2))
sketch2.addConstraint(Sketcher.Constraint("Horizontal", 68, 2, 71, 2))
sketch2.addConstraint(Sketcher.Constraint("Horizontal", 67, 2, 72, 2))
sketch2.addConstraint(Sketcher.Constraint("Horizontal", 71, 2, 74, 2))
sketch2.addConstraint(Sketcher.Constraint("Vertical", 25, 3, 56, 3))
sketch2.addConstraint(Sketcher.Constraint("Vertical", 56, 3, 75, 3))
sketch2.addConstraint(Sketcher.Constraint("Vertical", 7, 2, 10, 2))
sketch2.addConstraint(Sketcher.Constraint("Vertical", 6, 2, 12, 2))
sketch2.addConstraint(Sketcher.Constraint("Vertical", 10, 2, 14, 2))
sketch2.addConstraint(Sketcher.Constraint("Vertical", 13, 2, 18, 2))
sketch2.addConstraint(Sketcher.Constraint("Vertical", 17, 2, 20, 2))
sketch2.addConstraint(Sketcher.Constraint("Vertical", 19, 2, 26, 2))
sketch2.addConstraint(Sketcher.Constraint("Vertical", 23, 2, 28, 2))
sketch2.addConstraint(Sketcher.Constraint("Vertical", 27, 2, 32, 2))
sketch2.addConstraint(Sketcher.Constraint("Vertical", 31, 2, 34, 2))
sketch2.addConstraint(Sketcher.Constraint("Vertical", 45, 2, 47, 2))
sketch2.addConstraint(Sketcher.Constraint("Equal", 48, 51))
sketch2.addConstraint(Sketcher.Constraint("Equal", 54, 58))
sketch2.addConstraint(Sketcher.Constraint("Equal", 61, 64))
sketch2.addConstraint(Sketcher.Constraint("Equal", 67, 70))
sketch2.addConstraint(Sketcher.Constraint("Equal", 2, 1))
sketch2.addConstraint(Sketcher.Constraint("Equal", 73, 6))
sketch2.addConstraint(Sketcher.Constraint("Equal", 9, 13))
sketch2.addConstraint(Sketcher.Constraint("Equal", 16, 19))
sketch2.addConstraint(Sketcher.Constraint("Equal", 22, 27))
sketch2.addConstraint(Sketcher.Constraint("Equal", 30, 33))
sketch2.addConstraint(Sketcher.Constraint("Equal", 40, 39))
sketch2.addConstraint(Sketcher.Constraint("Equal", 38, 41))
sketch2.addConstraint(Sketcher.Constraint("Equal", 37, 44))
sketch2.addConstraint(Sketcher.Constraint("Diameter", 4, 5.3))
sketch2.addConstraint(Sketcher.Constraint("DistanceX", 0, 2, 0, 1, 150.0))
sketch2.addConstraint(Sketcher.Constraint("DistanceX", 38, 1, 38, 2, 89.0))
sketch2.addConstraint(Sketcher.Constraint("DistanceX", 40, 1, 40, 2, 25.0))
sketch2.addConstraint(Sketcher.Constraint("Angle", 5, Q("-150 deg")))
sketch2.addConstraint(Sketcher.Constraint("DistanceX", -1, 1, 4, 3, 130.0))
sketch2.addConstraint(Sketcher.Constraint("DistanceY", 4, 3, -1, 1, 10.0))
sketch2.addConstraint(Sketcher.Constraint("DistanceX", -1, 1, 11, 3, 80.0))
sketch2.addConstraint(Sketcher.Constraint("DistanceX", -1, 1, 24, 3, 30.0))
sketch2.addConstraint(Sketcher.Constraint("DistanceX", -1, 1, 25, 3, 10.0))
sketch2.addConstraint(Sketcher.Constraint("DistanceY", 25, 3, -1, 1, 30.0))
sketch2.addConstraint(Sketcher.Constraint("DistanceY", 56, 3, -1, 1, 80.0))
sketch2.addConstraint(Sketcher.Constraint("DistanceY", 75, 3, -1, 1, 130.0))
sketch2.addConstraint(Sketcher.Constraint("DistanceX", -1, 1, 7, 2, 142.0))
sketch2.addConstraint(Sketcher.Constraint("DistanceX", -1, 1, 38, 2, 109.0))
sketch2.addConstraint(Sketcher.Constraint("DistanceY", 38, 2, -1, 1, 134.0))
sketch2.addConstraint(Sketcher.Constraint("DistanceY", 46, 2, -1, 1, 142.0))
sketch2.addConstraint(Sketcher.Constraint("DistanceX", -1, 1, 5, 2, 138.45))
sketch2.addConstraint(Sketcher.Constraint("DistanceX", 45, 2, 45, 1, 4.099187))
sketch2.addConstraint(Sketcher.Constraint("DistanceY", 5, 2, -1, 1, 37.950407))
sketch2.addConstraint(Sketcher.Constraint("DistanceY", 12, 2, -1, 1, 52.950407))
sketch2.addConstraint(Sketcher.Constraint("DistanceY", 18, 2, -1, 1, 67.950407))
sketch2.addConstraint(Sketcher.Constraint("DistanceY", 26, 2, -1, 1, 82.950407))
sketch2.addConstraint(Sketcher.Constraint("DistanceY", 32, 2, -1, 1, 97.950407))
sketch2.addConstraint(Sketcher.Constraint("DistanceX", -1, 1, 44, 2, 102.049593))
sketch2.addConstraint(Sketcher.Constraint("DistanceX", -1, 1, 50, 2, 87.049593))
sketch2.addConstraint(Sketcher.Constraint("DistanceX", -1, 1, 57, 2, 72.049593))
sketch2.addConstraint(Sketcher.Constraint("DistanceX", -1, 1, 63, 2, 57.049593))
sketch2.addConstraint(Sketcher.Constraint("DistanceX", -1, 1, 69, 2, 42.049593))
pad2 = body.newObject("PartDesign::Pad", "Pad001")
pad2.Profile = sketch2
pad2.Length = 6
pad2.Reversed = True

sketch3 = body.newObject("Sketcher::SketchObject", "Sketch002")
sketch3.AttachmentSupport = (doc.getObject("XZ_Plane"), [""])
sketch3.MapMode = "FlatFace"
sketch3.addGeometry(Part.Circle(App.Vector(10, -130, 0), App.Vector(0, 0, 1), 4.5), False)
sketch3.addGeometry(Part.Circle(App.Vector(10, -80, 0), App.Vector(0, 0, 1), 4.5), False)
sketch3.addGeometry(Part.Circle(App.Vector(10, -30, 0), App.Vector(0, 0, 1), 4.5), False)
sketch3.addGeometry(Part.Circle(App.Vector(30, -10, 0), App.Vector(0, 0, 1), 4.5), False)
sketch3.addGeometry(Part.Circle(App.Vector(80, -10, 0), App.Vector(0, 0, 1), 4.5), False)
sketch3.addGeometry(Part.Circle(App.Vector(130, -10, 0), App.Vector(0, 0, 1), 4.5), False)
sketch3.addGeometry(Part.Circle(App.Vector(65.625, -65.625, 0), App.Vector(0, 0, 1), 12.5), False)
sketch3.addConstraint(Sketcher.Constraint("Equal", 0, 1))
sketch3.addConstraint(Sketcher.Constraint("Equal", 1, 2))
sketch3.addConstraint(Sketcher.Constraint("Equal", 2, 3))
sketch3.addConstraint(Sketcher.Constraint("Equal", 3, 4))
sketch3.addConstraint(Sketcher.Constraint("Equal", 4, 5))
sketch3.addConstraint(Sketcher.Constraint("Horizontal", 3, 3, 4, 3))
sketch3.addConstraint(Sketcher.Constraint("Horizontal", 4, 3, 5, 3))
sketch3.addConstraint(Sketcher.Constraint("Vertical", 0, 3, 1, 3))
sketch3.addConstraint(Sketcher.Constraint("Vertical", 1, 3, 2, 3))
sketch3.addConstraint(Sketcher.Constraint("Diameter", 0, 9.0))
sketch3.addConstraint(Sketcher.Constraint("Diameter", 6, 25.0))
sketch3.addConstraint(Sketcher.Constraint("DistanceX", -1, 1, 0, 3, 10.0))
sketch3.addConstraint(Sketcher.Constraint("DistanceY", 0, 3, -1, 1, 130.0))
sketch3.addConstraint(Sketcher.Constraint("DistanceY", 1, 3, -1, 1, 80.0))
sketch3.addConstraint(Sketcher.Constraint("DistanceY", 2, 3, -1, 1, 30.0))
sketch3.addConstraint(Sketcher.Constraint("DistanceX", -1, 1, 3, 3, 30.0))
sketch3.addConstraint(Sketcher.Constraint("DistanceY", 3, 3, -1, 1, 10.0))
sketch3.addConstraint(Sketcher.Constraint("DistanceX", -1, 1, 4, 3, 80.0))
sketch3.addConstraint(Sketcher.Constraint("DistanceX", -1, 1, 5, 3, 130.0))
sketch3.addConstraint(Sketcher.Constraint("DistanceX", -1, 1, 6, 3, 65.625))
sketch3.addConstraint(Sketcher.Constraint("DistanceY", 6, 3, -1, 1, 65.625))
pocket1 = body.newObject("PartDesign::Pocket", "Pocket")
pocket1.Profile = sketch3
pocket1.Length = 6.5

sketch4 = body.newObject("Sketcher::SketchObject", "Sketch003")
sketch4.AttachmentSupport = (doc.getObject("XZ_Plane"), [""])
sketch4.MapMode = "FlatFace"
sketch4.AttachmentOffset = App.Placement(App.Vector(0, 0, -10), App.Rotation())
sketch4.addGeometry(Part.LineSegment(App.Vector(125, -150, 0), App.Vector(125, -125, 0)), False)
sketch4.addGeometry(Part.LineSegment(App.Vector(125, -125, 0), App.Vector(150, -125, 0)), False)
sketch4.addGeometry(Part.LineSegment(App.Vector(150, -125, 0), App.Vector(150, -150, 0)), False)
sketch4.addGeometry(Part.LineSegment(App.Vector(150, -150, 0), App.Vector(125, -150, 0)), False)
sketch4.addConstraint(Sketcher.Constraint("Coincident", 0, 2, 1, 1))
sketch4.addConstraint(Sketcher.Constraint("Coincident", 1, 2, 2, 1))
sketch4.addConstraint(Sketcher.Constraint("Coincident", 2, 2, 3, 1))
sketch4.addConstraint(Sketcher.Constraint("Coincident", 3, 2, 0, 1))
sketch4.addConstraint(Sketcher.Constraint("Vertical", 0))
sketch4.addConstraint(Sketcher.Constraint("Horizontal", 1))
sketch4.addConstraint(Sketcher.Constraint("Vertical", 2))
sketch4.addConstraint(Sketcher.Constraint("Horizontal", 3))
sketch4.addConstraint(Sketcher.Constraint("Equal", 3, 0))
sketch4.addConstraint(Sketcher.Constraint("DistanceX", 1, 1, 1, 2, 25.0))
sketch4.addConstraint(Sketcher.Constraint("DistanceX", -1, 1, 0, 2, 125.0))
sketch4.addConstraint(Sketcher.Constraint("DistanceY", 0, 2, -1, 1, 125.0))
pocket2 = body.newObject("PartDesign::Pocket", "Pocket001")
pocket2.Profile = sketch4
pocket2.Length = 10
pocket2.Reversed = True

sketch5 = body.newObject("Sketcher::SketchObject", "Sketch004")
sketch5.AttachmentSupport = (doc.getObject("XZ_Plane"), [""])
sketch5.MapMode = "FlatFace"
sketch5.AttachmentOffset = App.Placement(App.Vector(0, 0, -10), App.Rotation())
sketch5.addGeometry(Part.LineSegment(App.Vector(113, -150, 0), App.Vector(113, -113, 0)), False)
sketch5.addGeometry(Part.LineSegment(App.Vector(113, -113, 0), App.Vector(150, -113, 0)), False)
sketch5.addGeometry(Part.LineSegment(App.Vector(150, -113, 0), App.Vector(150, -150, 0)), False)
sketch5.addGeometry(Part.LineSegment(App.Vector(150, -150, 0), App.Vector(113, -150, 0)), False)
sketch5.addConstraint(Sketcher.Constraint("Coincident", 0, 2, 1, 1))
sketch5.addConstraint(Sketcher.Constraint("Coincident", 1, 2, 2, 1))
sketch5.addConstraint(Sketcher.Constraint("Coincident", 2, 2, 3, 1))
sketch5.addConstraint(Sketcher.Constraint("Coincident", 3, 2, 0, 1))
sketch5.addConstraint(Sketcher.Constraint("Vertical", 0))
sketch5.addConstraint(Sketcher.Constraint("Horizontal", 1))
sketch5.addConstraint(Sketcher.Constraint("Vertical", 2))
sketch5.addConstraint(Sketcher.Constraint("Horizontal", 3))
sketch5.addConstraint(Sketcher.Constraint("Equal", 3, 0))
sketch5.addConstraint(Sketcher.Constraint("DistanceX", 1, 1, 1, 2, 37.0))
sketch5.addConstraint(Sketcher.Constraint("DistanceX", -1, 1, 0, 2, 113.0))
sketch5.addConstraint(Sketcher.Constraint("DistanceY", 0, 2, -1, 1, 113.0))
pocket3 = body.newObject("PartDesign::Pocket", "Pocket002")
pocket3.Profile = sketch5
pocket3.Length = 6
pocket3.Reversed = True

sketch6 = body.newObject("Sketcher::SketchObject", "Sketch005")
sketch6.AttachmentSupport = (doc.getObject("XZ_Plane"), [""])
sketch6.MapMode = "FlatFace"
sketch6.AttachmentOffset = App.Placement(App.Vector(0, 0, -4), App.Rotation())
sketch6.addGeometry(Part.Circle(App.Vector(119, -134.5, 0), App.Vector(0, 0, 1), 1.6), False)
sketch6.addGeometry(Part.Circle(App.Vector(134.5, -119, 0), App.Vector(0, 0, 1), 1.6), False)
sketch6.addConstraint(Sketcher.Constraint("Equal", 0, 1))
sketch6.addConstraint(Sketcher.Constraint("Diameter", 0, 3.2))
sketch6.addConstraint(Sketcher.Constraint("DistanceX", -1, 1, 0, 3, 119.0))
sketch6.addConstraint(Sketcher.Constraint("DistanceY", 1, 3, -1, 1, 119.0))
sketch6.addConstraint(Sketcher.Constraint("DistanceY", 0, 3, -1, 1, 134.5))
sketch6.addConstraint(Sketcher.Constraint("DistanceX", -1, 1, 1, 3, 134.5))
pocket4 = body.newObject("PartDesign::Pocket", "Pocket003")
pocket4.Profile = sketch6
pocket4.Length = 24.5
pocket4.Reversed = True
doc.recompute()

chamfer = body.newObject("PartDesign::Chamfer", "Chamfer")
chamfer.Base = (pocket4, edges_at(pocket4, [(75, 0, 0), (0, 0, -75)]))
chamfer.Size = 2

sketch7 = body.newObject("Sketcher::SketchObject", "Sketch006")
sketch7.AttachmentSupport = (doc.getObject("XZ_Plane"), [""])
sketch7.MapMode = "FlatFace"
sketch7.addGeometry(Part.LineSegment(App.Vector(104, -56, 0), App.Vector(104, -71, 0)), False)
sketch7.addGeometry(Part.ArcOfCircle(Part.Circle(App.Vector(110, -71, 0), App.Vector(0, 0, 1), 6), math.radians(180), math.radians(360)), False)
sketch7.addGeometry(Part.LineSegment(App.Vector(116, -71, 0), App.Vector(116, -56, 0)), False)
sketch7.addGeometry(Part.ArcOfCircle(Part.Circle(App.Vector(110, -56, 0), App.Vector(0, 0, 1), 6), math.radians(0), math.radians(180)), False)
sketch7.addConstraint(Sketcher.Constraint("Tangent", 0, 2, 1, 1))
sketch7.addConstraint(Sketcher.Constraint("Tangent", 1, 2, 2, 1))
sketch7.addConstraint(Sketcher.Constraint("Tangent", 2, 2, 3, 1))
sketch7.addConstraint(Sketcher.Constraint("Tangent", 3, 2, 0, 1))
sketch7.addConstraint(Sketcher.Constraint("Vertical", 0))
sketch7.addConstraint(Sketcher.Constraint("Vertical", 2))
sketch7.addConstraint(Sketcher.Constraint("Radius", 1, 6.0))
sketch7.addConstraint(Sketcher.Constraint("DistanceY", 0, 2, 0, 1, 15.0))
sketch7.addConstraint(Sketcher.Constraint("DistanceX", -1, 1, 1, 3, 110.0))
sketch7.addConstraint(Sketcher.Constraint("DistanceY", 1, 3, -1, 1, 71.0))
pocket5 = body.newObject("PartDesign::Pocket", "Pocket004")
pocket5.Profile = sketch7
pocket5.Length = 24.5
doc.recompute()

chamfer2 = body.newObject("PartDesign::Chamfer", "Chamfer001")
chamfer2.Base = (pocket5, edges_at(pocket5, [
    (65.625, 0, -53.125),
    (110, 0, -77),
    (116, 0, -63.5),
    (110, 0, -50),
    (104, 0, -63.5),
]))
chamfer2.Size = 2
doc.recompute()

chamfer3 = body.newObject("PartDesign::Chamfer", "Chamfer002")
chamfer3.Base = (chamfer2, edges_at(chamfer2, [(125, 2, -150), (150, 2, -125)]))
chamfer3.Size = 0.5
doc.recompute()

chamfer4 = body.newObject("PartDesign::Chamfer", "Chamfer003")
chamfer4.Base = (chamfer3, edges_at(chamfer3, [(125, 2, -125)]))
chamfer4.Size = 6

doc.recompute()
